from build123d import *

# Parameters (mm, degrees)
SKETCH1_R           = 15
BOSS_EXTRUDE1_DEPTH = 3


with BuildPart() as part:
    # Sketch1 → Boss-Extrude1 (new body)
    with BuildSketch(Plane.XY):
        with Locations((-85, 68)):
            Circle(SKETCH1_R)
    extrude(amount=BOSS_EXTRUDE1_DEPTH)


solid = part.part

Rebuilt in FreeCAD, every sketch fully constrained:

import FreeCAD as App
import Part
import Sketcher
Q = App.Units.Quantity

doc = App.newDocument("Part")
body = doc.addObject("PartDesign::Body", "Body")

sketch1 = body.newObject("Sketcher::SketchObject", "Sketch")
sketch1.AttachmentSupport = (doc.getObject("XY_Plane"), [""])
sketch1.MapMode = "FlatFace"
sketch1.addGeometry(Part.Circle(App.Vector(-85, 68, 0), App.Vector(0, 0, 1), 15), False)
sketch1.addConstraint([
    Sketcher.Constraint("Diameter", 0, Q("30 mm")),
    Sketcher.Constraint("DistanceX", 0, 3, -1, 1, Q("85 mm")),
    Sketcher.Constraint("DistanceY", -1, 1, 0, 3, Q("68 mm")),
])
pad1 = body.newObject("PartDesign::Pad", "Pad")
pad1.Profile = sketch1
pad1.Length = 3

doc.recompute()
